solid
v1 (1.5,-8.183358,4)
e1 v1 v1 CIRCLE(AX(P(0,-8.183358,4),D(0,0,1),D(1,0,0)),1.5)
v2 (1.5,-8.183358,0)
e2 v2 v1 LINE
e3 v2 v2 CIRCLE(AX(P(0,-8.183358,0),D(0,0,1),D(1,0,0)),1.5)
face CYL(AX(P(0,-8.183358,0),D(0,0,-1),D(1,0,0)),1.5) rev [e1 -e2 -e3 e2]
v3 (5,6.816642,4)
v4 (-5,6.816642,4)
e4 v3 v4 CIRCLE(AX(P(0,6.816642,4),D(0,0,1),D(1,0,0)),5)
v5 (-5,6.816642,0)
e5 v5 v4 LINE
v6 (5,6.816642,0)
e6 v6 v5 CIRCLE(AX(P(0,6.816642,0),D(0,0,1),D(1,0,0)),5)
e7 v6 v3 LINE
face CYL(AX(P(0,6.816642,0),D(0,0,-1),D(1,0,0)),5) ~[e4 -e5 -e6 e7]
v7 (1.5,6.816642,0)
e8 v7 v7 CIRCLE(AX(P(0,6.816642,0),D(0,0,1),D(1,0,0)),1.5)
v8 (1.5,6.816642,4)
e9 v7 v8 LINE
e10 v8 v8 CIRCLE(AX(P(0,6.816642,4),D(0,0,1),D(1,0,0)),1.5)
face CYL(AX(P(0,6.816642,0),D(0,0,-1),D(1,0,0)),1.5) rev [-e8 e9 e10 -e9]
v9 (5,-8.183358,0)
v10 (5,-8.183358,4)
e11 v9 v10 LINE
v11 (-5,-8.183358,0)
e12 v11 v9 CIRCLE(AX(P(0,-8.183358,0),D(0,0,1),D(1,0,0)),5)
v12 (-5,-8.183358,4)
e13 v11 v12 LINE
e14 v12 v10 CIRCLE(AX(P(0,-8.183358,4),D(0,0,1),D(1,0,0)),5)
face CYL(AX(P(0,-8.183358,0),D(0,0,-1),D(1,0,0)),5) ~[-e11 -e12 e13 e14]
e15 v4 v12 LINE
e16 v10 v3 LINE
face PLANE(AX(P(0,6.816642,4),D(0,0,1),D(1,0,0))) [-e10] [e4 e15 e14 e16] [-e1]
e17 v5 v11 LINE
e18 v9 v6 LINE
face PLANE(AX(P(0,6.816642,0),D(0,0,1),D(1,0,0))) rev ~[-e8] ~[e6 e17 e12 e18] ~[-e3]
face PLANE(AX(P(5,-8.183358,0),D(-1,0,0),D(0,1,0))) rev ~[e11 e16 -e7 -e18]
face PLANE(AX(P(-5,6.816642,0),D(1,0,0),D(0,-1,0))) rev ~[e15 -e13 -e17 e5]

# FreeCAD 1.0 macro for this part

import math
import FreeCAD as App
import Part
import Sketcher

V = App.Vector

doc = App.newDocument("Part")
body = doc.addObject("PartDesign::Body", "Body")

# Sketch on XY plane
sketch1 = body.newObject("Sketcher::SketchObject", "Sketch")
sketch1.AttachmentSupport = (doc.getObject("XY_Plane"), [""])
sketch1.MapMode = "FlatFace"
sketch1.addGeometry([
    Part.ArcOfCircle(Part.Circle(V(0, 6.816642, 0), V(0, 0, 1), 5), math.radians(0), math.radians(180)),  # 0
    Part.LineSegment(V(-5, 6.816642, 0), V(-5, -8.183358, 0)),  # 1
    Part.ArcOfCircle(Part.Circle(V(0, -8.183358, 0), V(0, 0, 1), 5), math.radians(180), math.radians(360)),  # 2
    Part.LineSegment(V(5, -8.183358, 0), V(5, 6.816642, 0)),  # 3
    Part.Circle(V(0, -8.183358, 0), V(0, 0, 1), 1.5),  # 4
    Part.Circle(V(0, 6.816642, 0), V(0, 0, 1), 1.5),  # 5
], False)
sketch1.addConstraint([
    Sketcher.Constraint("Tangent", 0, 2, 1, 1),
    Sketcher.Constraint("Tangent", 1, 2, 2, 1),
    Sketcher.Constraint("Tangent", 2, 2, 3, 1),
    Sketcher.Constraint("Tangent", 3, 2, 0, 1),
    Sketcher.Constraint("Vertical", 1),
    Sketcher.Constraint("Vertical", 3),
    Sketcher.Constraint("Coincident", 4, 3, 2, 3),
    Sketcher.Constraint("Coincident", 5, 3, 0, 3),
    Sketcher.Constraint("Equal", 4, 5),
    Sketcher.Constraint("PointOnObject", 0, 3, -2),
    Sketcher.Constraint("Diameter", 4, 3.0),
    Sketcher.Constraint("Radius", 0, 5.0),
    Sketcher.Constraint("DistanceY", 1, 2, 1, 1, 15.0),
    Sketcher.Constraint("DistanceY", -1, 1, 0, 3, 6.816642),
])
pad1 = body.newObject("PartDesign::Pad", "Pad")
pad1.Profile = sketch1
pad1.Length = 4

doc.recompute()
